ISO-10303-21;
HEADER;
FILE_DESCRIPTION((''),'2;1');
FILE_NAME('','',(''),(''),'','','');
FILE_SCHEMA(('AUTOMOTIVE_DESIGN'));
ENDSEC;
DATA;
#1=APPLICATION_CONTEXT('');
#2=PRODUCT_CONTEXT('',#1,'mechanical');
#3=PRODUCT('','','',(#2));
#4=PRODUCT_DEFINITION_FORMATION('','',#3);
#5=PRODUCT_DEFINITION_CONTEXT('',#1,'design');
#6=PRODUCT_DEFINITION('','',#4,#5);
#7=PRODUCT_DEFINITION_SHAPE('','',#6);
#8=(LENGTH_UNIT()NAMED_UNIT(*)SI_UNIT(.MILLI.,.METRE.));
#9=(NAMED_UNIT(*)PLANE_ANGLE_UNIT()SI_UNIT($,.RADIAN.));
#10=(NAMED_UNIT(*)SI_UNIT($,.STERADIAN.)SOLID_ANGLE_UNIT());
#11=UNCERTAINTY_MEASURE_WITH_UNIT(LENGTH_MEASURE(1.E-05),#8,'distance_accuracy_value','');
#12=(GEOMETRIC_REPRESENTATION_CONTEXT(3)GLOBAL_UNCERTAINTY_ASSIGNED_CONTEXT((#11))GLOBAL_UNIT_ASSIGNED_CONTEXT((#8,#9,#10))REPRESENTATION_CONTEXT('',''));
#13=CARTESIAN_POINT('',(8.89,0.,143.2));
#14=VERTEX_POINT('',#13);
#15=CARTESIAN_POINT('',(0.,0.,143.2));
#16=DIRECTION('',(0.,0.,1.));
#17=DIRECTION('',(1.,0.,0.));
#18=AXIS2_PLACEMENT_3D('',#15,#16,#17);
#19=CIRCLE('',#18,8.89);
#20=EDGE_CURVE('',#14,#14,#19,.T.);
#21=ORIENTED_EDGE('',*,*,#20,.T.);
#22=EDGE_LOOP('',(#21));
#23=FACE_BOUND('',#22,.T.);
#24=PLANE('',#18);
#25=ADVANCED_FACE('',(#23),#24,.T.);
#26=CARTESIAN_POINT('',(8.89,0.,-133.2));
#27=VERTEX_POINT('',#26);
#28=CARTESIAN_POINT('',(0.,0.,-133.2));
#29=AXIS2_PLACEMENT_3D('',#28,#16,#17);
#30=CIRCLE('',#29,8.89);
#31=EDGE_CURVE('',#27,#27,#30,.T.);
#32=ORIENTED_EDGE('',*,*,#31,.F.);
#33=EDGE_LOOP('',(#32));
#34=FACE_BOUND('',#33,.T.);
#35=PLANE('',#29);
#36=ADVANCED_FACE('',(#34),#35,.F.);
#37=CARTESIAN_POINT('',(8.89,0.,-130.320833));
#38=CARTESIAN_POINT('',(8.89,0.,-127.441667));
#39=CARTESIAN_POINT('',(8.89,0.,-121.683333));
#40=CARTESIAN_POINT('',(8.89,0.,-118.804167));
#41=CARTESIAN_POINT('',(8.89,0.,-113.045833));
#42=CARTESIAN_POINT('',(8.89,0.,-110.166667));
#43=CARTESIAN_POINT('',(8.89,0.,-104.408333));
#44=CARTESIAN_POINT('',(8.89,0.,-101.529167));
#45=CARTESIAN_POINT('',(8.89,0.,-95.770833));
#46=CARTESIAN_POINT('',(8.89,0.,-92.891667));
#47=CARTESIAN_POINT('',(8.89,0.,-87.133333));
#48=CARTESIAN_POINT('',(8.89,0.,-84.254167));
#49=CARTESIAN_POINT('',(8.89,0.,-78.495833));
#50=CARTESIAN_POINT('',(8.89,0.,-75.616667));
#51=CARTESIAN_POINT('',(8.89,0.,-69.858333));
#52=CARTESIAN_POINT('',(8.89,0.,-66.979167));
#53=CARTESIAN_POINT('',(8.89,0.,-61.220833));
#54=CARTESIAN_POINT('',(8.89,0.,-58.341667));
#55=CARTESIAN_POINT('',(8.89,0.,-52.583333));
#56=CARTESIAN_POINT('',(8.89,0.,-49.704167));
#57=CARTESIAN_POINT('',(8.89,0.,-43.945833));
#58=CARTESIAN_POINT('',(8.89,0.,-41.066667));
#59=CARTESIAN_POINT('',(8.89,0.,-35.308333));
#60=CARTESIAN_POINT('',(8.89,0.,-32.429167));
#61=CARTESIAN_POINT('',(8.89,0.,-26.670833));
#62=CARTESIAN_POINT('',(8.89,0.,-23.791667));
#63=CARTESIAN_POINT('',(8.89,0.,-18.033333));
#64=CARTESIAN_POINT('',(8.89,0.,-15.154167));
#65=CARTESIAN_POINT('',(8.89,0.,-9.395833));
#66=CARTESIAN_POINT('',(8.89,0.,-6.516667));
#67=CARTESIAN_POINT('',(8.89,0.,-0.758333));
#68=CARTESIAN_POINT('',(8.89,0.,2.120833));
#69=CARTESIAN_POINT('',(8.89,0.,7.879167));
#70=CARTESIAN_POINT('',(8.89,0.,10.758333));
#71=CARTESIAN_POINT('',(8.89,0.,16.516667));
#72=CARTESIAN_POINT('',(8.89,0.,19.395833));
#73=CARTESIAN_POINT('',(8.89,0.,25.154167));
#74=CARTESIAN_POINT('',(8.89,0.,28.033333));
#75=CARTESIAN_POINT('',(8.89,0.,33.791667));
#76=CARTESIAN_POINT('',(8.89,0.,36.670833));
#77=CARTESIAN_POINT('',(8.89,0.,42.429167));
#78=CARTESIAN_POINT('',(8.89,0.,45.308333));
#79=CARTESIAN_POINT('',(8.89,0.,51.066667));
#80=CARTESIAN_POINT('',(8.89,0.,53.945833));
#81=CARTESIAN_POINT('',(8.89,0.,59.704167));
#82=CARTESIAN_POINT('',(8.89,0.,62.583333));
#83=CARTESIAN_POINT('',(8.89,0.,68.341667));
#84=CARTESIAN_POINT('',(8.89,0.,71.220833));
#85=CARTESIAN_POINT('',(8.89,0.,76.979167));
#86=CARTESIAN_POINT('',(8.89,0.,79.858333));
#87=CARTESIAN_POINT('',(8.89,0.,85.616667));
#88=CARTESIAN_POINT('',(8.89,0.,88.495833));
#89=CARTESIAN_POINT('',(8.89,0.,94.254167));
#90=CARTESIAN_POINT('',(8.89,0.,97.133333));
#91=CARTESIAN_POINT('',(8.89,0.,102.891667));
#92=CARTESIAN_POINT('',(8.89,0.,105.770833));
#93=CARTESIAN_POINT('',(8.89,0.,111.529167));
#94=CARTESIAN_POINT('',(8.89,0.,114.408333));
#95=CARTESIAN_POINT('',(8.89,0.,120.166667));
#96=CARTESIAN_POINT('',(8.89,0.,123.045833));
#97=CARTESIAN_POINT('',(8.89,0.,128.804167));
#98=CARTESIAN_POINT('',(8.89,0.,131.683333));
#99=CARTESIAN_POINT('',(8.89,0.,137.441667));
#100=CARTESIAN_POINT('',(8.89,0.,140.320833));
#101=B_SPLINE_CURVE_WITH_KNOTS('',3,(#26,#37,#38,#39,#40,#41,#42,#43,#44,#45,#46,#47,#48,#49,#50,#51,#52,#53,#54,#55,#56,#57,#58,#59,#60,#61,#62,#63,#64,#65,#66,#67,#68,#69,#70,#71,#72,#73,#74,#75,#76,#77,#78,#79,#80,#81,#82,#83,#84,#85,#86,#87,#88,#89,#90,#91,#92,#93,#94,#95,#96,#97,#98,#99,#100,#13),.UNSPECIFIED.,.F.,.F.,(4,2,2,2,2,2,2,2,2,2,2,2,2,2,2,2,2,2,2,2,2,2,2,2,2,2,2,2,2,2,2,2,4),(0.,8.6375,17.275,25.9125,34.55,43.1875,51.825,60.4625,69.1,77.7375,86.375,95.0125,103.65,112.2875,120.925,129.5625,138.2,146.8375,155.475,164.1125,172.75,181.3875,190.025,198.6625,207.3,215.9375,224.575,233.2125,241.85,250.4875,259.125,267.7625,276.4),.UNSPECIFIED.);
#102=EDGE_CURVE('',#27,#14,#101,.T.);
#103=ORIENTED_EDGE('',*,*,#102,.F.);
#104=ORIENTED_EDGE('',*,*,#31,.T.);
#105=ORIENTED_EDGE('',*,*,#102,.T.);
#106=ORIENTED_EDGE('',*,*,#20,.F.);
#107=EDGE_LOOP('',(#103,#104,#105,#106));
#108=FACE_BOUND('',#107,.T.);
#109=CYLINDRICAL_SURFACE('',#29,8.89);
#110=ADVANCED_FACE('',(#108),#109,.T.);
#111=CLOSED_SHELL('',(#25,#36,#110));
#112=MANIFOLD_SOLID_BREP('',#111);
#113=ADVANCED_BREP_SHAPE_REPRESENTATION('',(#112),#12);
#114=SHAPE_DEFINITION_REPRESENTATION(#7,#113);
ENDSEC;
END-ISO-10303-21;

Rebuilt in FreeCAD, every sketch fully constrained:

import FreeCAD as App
import Part
import Sketcher
Q = App.Units.Quantity

doc = App.newDocument("Part")
params = doc.addObject("Spreadsheet::Sheet", "Params")
for row, (alias, value) in enumerate([
    ("sketch1_diameter", "17.78 mm"),
    ("pad1_length", "143.2 mm"),
    ("pad1_length2", "133.2 mm"),
], start=1):
    params.set(f"A{row}", alias)
    params.set(f"B{row}", "=" + value)
    params.setAlias(f"B{row}", alias)

body = doc.addObject("PartDesign::Body", "Body")

sketch1 = body.newObject("Sketcher::SketchObject", "Sketch")
sketch1.AttachmentSupport = (doc.getObject("XY_Plane"), [""])
sketch1.MapMode = "FlatFace"
sketch1.addGeometry(Part.Circle(App.Vector(0, 0, 0), App.Vector(0, 0, 1), 9), False)
sketch1.addConstraint(Sketcher.Constraint("Coincident", 0, 3, -1, 1))
sketch1.addConstraint(Sketcher.Constraint("Diameter", 0, Q("17.78 mm")))
sketch1.setExpression("Constraints[1]", "Params.sketch1_diameter")
pad1 = body.newObject("PartDesign::Pad", "Pad")
pad1.Profile = sketch1
pad1.Type = "TwoLengths"
pad1.setExpression("Length", "Params.pad1_length")
pad1.setExpression("Length2", "Params.pad1_length2")

doc.recompute()
